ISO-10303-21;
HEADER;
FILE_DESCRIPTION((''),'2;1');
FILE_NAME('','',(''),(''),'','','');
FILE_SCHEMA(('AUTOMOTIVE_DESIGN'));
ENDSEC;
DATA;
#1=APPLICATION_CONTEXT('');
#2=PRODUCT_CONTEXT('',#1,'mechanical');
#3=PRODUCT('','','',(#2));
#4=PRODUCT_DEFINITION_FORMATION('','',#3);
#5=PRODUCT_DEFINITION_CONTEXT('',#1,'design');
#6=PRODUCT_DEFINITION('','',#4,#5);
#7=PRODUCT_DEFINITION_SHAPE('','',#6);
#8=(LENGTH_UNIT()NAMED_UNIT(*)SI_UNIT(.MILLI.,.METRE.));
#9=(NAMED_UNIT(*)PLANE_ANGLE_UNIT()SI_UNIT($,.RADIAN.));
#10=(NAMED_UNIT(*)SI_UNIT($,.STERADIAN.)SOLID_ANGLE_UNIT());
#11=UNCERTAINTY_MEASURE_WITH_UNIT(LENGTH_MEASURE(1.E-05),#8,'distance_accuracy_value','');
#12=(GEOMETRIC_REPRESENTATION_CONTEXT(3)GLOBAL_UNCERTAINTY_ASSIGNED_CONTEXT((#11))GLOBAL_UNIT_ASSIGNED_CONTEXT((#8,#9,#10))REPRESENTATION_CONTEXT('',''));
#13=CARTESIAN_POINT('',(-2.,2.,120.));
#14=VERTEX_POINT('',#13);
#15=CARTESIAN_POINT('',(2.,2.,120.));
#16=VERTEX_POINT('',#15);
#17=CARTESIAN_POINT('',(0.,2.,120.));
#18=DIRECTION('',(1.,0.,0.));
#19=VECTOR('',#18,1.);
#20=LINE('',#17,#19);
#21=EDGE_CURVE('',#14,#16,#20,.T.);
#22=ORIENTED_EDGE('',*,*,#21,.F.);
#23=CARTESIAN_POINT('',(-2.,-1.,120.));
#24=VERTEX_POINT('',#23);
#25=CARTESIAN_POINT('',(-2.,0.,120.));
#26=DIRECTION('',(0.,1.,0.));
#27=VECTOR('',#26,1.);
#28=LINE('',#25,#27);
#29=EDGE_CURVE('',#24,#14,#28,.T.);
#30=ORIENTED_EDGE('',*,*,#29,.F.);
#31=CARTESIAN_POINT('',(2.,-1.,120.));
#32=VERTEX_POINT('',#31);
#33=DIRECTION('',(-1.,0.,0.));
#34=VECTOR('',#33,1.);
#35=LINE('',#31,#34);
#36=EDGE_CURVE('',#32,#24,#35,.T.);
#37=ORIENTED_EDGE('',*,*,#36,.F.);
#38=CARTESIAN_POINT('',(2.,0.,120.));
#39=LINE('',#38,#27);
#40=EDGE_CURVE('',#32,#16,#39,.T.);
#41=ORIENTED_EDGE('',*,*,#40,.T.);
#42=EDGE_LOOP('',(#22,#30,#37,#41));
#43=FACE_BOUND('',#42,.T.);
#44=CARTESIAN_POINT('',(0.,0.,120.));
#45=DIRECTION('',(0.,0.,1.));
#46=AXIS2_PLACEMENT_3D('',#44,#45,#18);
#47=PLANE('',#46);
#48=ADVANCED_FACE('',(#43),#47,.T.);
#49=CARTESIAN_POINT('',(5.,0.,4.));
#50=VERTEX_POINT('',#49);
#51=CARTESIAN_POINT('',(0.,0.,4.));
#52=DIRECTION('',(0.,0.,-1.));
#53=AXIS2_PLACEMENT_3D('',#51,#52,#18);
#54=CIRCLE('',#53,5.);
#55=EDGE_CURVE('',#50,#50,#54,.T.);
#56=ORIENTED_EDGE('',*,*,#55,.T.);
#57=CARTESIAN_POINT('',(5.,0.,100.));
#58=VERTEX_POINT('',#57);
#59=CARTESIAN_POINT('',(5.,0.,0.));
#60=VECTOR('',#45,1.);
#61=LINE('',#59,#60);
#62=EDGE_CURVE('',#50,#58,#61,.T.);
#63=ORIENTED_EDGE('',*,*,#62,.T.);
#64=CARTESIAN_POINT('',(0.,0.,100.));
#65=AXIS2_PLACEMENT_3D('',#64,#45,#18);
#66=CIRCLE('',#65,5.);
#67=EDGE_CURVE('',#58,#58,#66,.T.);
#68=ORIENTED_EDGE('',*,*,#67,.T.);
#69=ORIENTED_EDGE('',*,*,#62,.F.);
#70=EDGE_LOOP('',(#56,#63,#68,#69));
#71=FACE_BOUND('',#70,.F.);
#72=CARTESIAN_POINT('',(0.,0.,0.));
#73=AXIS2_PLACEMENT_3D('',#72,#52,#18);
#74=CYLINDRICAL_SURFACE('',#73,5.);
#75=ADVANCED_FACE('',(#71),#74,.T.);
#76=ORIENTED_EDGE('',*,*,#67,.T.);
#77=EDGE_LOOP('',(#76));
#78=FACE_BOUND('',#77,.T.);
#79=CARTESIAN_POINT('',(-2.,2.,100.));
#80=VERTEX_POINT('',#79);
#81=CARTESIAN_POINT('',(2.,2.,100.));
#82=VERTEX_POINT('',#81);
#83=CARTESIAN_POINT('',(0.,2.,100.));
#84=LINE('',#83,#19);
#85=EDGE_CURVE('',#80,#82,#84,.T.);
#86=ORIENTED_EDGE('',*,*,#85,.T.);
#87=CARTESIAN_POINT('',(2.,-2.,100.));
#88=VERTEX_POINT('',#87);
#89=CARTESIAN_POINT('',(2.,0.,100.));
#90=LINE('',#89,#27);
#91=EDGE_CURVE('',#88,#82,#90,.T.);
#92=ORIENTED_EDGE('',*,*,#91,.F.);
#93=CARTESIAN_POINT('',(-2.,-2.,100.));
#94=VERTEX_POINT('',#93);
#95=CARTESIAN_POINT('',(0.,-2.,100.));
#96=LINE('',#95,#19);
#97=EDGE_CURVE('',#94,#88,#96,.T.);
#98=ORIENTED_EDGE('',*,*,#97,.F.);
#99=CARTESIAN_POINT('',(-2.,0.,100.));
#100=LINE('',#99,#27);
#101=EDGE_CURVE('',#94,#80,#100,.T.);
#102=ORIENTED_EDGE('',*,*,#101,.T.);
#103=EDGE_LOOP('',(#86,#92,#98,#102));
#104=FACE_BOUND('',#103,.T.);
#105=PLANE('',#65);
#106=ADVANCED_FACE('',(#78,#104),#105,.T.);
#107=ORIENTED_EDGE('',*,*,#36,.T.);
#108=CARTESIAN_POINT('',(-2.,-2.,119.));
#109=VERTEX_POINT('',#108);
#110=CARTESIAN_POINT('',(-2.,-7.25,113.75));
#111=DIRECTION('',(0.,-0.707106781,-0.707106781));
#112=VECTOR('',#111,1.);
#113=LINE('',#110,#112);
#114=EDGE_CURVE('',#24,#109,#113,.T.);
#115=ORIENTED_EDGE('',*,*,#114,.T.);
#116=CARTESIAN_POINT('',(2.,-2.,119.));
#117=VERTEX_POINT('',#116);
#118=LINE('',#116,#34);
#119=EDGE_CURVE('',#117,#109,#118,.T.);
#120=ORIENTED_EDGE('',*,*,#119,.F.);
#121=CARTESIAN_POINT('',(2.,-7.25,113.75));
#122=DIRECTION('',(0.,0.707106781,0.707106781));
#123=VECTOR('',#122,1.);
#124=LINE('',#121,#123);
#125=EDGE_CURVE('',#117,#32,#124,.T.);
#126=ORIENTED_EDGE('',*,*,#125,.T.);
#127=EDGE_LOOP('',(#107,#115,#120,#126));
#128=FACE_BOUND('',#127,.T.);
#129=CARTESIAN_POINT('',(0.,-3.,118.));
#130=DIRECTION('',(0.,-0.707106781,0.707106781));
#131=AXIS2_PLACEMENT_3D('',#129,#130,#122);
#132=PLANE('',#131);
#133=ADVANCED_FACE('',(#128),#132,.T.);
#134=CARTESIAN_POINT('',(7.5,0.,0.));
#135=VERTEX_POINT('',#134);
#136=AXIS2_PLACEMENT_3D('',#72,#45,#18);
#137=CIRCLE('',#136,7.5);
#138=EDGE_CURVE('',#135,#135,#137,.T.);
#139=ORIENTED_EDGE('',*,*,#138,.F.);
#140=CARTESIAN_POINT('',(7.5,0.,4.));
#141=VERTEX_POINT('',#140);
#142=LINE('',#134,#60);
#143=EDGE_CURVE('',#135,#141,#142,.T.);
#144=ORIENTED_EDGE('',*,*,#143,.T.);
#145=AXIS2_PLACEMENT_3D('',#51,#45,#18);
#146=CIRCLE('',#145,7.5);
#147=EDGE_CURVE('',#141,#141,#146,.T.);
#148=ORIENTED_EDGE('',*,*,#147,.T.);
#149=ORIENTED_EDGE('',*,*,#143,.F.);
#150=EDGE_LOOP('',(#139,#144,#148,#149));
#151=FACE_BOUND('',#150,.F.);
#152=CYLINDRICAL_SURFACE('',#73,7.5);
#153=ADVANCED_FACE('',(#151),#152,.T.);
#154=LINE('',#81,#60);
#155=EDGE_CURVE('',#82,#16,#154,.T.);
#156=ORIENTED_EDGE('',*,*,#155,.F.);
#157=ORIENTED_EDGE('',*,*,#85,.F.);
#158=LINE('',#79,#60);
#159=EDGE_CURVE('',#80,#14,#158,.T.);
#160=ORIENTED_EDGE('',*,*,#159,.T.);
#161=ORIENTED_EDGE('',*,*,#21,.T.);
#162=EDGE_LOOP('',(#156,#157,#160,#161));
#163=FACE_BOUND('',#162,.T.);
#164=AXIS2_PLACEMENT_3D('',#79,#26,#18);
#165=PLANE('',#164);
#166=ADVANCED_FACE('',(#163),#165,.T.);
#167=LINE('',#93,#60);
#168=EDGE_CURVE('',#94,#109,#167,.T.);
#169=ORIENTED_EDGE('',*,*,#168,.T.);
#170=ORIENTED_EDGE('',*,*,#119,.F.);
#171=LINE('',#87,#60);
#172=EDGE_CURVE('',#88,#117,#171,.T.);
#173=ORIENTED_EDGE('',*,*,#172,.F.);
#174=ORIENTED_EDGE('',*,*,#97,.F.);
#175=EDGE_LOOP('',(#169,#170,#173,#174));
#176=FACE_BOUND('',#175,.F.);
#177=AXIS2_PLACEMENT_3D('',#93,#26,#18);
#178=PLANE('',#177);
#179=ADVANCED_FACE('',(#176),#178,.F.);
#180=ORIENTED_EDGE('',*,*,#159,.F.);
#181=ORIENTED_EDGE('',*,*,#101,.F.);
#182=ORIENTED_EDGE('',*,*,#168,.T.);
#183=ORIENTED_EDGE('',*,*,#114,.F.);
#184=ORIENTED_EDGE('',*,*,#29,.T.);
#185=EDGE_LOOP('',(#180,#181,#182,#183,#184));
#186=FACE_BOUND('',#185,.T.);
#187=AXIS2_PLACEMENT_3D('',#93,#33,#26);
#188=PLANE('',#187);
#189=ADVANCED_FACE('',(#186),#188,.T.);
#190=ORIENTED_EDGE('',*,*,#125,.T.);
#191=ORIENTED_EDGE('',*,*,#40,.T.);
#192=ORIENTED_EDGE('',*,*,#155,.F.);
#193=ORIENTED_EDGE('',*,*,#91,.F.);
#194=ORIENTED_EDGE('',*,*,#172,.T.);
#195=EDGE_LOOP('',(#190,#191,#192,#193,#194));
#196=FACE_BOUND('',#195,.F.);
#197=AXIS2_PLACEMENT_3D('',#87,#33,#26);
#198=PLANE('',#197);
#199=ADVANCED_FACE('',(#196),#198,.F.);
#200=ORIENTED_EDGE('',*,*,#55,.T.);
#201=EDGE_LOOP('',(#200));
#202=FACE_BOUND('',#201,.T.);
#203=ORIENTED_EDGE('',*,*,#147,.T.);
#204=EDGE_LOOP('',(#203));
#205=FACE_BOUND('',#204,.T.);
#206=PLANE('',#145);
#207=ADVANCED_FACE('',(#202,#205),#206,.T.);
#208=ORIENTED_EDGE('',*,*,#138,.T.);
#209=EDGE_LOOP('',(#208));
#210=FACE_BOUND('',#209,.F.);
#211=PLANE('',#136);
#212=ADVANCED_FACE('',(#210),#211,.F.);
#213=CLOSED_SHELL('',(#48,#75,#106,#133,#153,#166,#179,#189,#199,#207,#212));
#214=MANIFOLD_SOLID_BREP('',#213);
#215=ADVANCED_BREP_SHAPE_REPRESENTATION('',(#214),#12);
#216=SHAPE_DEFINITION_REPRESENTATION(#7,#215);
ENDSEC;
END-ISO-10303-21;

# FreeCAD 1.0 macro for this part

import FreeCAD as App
import Part
import Sketcher


def add_polygon(sketch, points):
    """Adds a closed chain of lines whose ends are joined by coincident constraints."""
    first, n = sketch.GeometryCount, len(points)
    for a, b in zip(points, points[1:] + points[:1]):
        sketch.addGeometry(Part.LineSegment(App.Vector(*a, 0), App.Vector(*b, 0)), False)
    for i in range(n):
        sketch.addConstraint(Sketcher.Constraint("Coincident", first + i, 2, first + (i + 1) % n, 1))

doc = App.newDocument("Part")
body = doc.addObject("PartDesign::Body", "Body")

sketch1 = body.newObject("Sketcher::SketchObject", "Sketch")
sketch1.AttachmentSupport = (doc.getObject("XY_Plane"), [""])
sketch1.MapMode = "FlatFace"
sketch1.addGeometry(Part.Circle(App.Vector(0, 0, 0), App.Vector(0, 0, 1), 7.5), False)
sketch1.addConstraint([
    Sketcher.Constraint("Coincident", 0, 3, -1, 1),
    Sketcher.Constraint("Diameter", 0, 15.0),
])
pad1 = body.newObject("PartDesign::Pad", "Pad")
pad1.Profile = sketch1
pad1.Length = 4

sketch2 = body.newObject("Sketcher::SketchObject", "Sketch001")
sketch2.AttachmentSupport = (doc.getObject("XY_Plane"), [""])
sketch2.MapMode = "FlatFace"
sketch2.addGeometry(Part.Circle(App.Vector(0, 0, 0), App.Vector(0, 0, 1), 5), False)
sketch2.addConstraint([
    Sketcher.Constraint("Coincident", 0, 3, -1, 1),
    Sketcher.Constraint("Diameter", 0, 10.0),
])
pad2 = body.newObject("PartDesign::Pad", "Pad001")
pad2.Profile = sketch2
pad2.Length = 100

sketch3 = body.newObject("Sketcher::SketchObject", "Sketch002")
sketch3.AttachmentSupport = (doc.getObject("XY_Plane"), [""])
sketch3.MapMode = "FlatFace"
sketch3.AttachmentOffset = App.Placement(App.Vector(0, 0, 100), App.Rotation())
add_polygon(sketch3, [(-2, 2), (-2, -2), (2, -2), (2, 2)])
sketch3.addConstraint([
    Sketcher.Constraint("Vertical", 0),
    Sketcher.Constraint("Horizontal", 1),
    Sketcher.Constraint("Vertical", 2),
    Sketcher.Constraint("Horizontal", 3),
    Sketcher.Constraint("Symmetric", 0, 2, 2, 2, -1, 1),
    Sketcher.Constraint("Equal", 3, 0),
    Sketcher.Constraint("DistanceX", 1, 1, 1, 2, 4.0),
])
pad3 = body.newObject("PartDesign::Pad", "Pad002")
pad3.Profile = sketch3
pad3.Length = 20

sketch4 = body.newObject("Sketcher::SketchObject", "Sketch003")
sketch4.AttachmentSupport = (doc.getObject("YZ_Plane"), [""])
sketch4.MapMode = "FlatFace"
add_polygon(sketch4, [(0, 121), (-3, 121), (-3, 118)])
sketch4.addConstraint([
    Sketcher.Constraint("Horizontal", 0),
    Sketcher.Constraint("Vertical", 1),
    Sketcher.Constraint("PointOnObject", 2, 2, -2),
    Sketcher.Constraint("Equal", 0, 1),
    Sketcher.Constraint("DistanceX", 0, 2, 0, 1, 3.0),
    Sketcher.Constraint("DistanceY", -1, 1, 0, 2, 121.0),
])
pocket1 = body.newObject("PartDesign::Pocket", "Pocket")
pocket1.Profile = sketch4
pocket1.Type = "ThroughAll"
pocket1.Midplane = True

doc.recompute()
